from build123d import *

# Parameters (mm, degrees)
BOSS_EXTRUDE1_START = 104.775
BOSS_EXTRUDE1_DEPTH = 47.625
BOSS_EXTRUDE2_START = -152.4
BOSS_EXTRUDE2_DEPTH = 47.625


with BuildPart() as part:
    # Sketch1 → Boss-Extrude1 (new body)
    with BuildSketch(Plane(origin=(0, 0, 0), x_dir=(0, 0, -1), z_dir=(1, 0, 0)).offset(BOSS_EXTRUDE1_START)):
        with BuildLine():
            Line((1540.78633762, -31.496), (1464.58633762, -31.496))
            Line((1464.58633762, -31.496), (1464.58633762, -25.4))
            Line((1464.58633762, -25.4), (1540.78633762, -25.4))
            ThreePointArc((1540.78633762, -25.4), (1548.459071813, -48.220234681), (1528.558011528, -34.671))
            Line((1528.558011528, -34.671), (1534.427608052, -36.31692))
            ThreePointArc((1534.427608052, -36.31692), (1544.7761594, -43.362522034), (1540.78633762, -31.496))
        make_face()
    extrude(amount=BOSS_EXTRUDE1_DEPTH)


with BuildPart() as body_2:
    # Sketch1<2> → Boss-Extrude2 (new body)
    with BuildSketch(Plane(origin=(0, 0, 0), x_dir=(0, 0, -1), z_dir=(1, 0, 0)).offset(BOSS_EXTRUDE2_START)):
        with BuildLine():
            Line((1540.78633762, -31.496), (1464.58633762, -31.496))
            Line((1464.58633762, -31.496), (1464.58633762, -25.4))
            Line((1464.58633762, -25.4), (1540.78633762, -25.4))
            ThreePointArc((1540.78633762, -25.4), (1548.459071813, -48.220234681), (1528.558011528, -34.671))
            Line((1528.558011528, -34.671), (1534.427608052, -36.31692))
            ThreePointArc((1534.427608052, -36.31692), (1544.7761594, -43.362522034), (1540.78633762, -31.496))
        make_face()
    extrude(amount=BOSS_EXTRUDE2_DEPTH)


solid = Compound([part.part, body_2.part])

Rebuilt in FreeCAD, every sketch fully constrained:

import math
import FreeCAD as App
import Part
import Sketcher
from FreeCAD import Vector
Q = App.Units.Quantity

doc = App.newDocument("Part")
body = doc.addObject("PartDesign::Body", "Body")

sketch1 = doc.addObject("Sketcher::SketchObject", "Sketch")
body.addObject(sketch1)
sketch1.AttachmentSupport = (doc.YZ_Plane, [""])
sketch1.MapMode = "FlatFace"
sketch1.AttachmentOffset = App.Placement(Vector(0, 0, 4.125 * 25.4), App.Rotation())
sketch1.addGeometry([
    Part.LineSegment(Vector(-31.496, -1464.586338, 0), Vector(-31.496, -1540.786338, 0)),
    Part.ArcOfCircle(Part.Circle(Vector(-38.1, -1540.786338, 0), Vector(0, 0, 1), 6.604), math.radians(74.335733), math.radians(360)),
    Part.LineSegment(Vector(-36.31692, -1534.427608, 0), Vector(-34.671, -1528.558012, 0)),
    Part.ArcOfCircle(Part.Circle(Vector(-38.1, -1540.786338, 0), Vector(0, 0, 1), 12.7), math.radians(74.335733), math.radians(360)),
    Part.LineSegment(Vector(-25.4, -1540.786338, 0), Vector(-25.4, -1464.586338, 0)),
    Part.LineSegment(Vector(-25.4, -1464.586338, 0), Vector(-31.496, -1464.586338, 0)),
], False)
sketch1.addConstraint([
    Sketcher.Constraint("Tangent", 0, 2, 1, 2),
    Sketcher.Constraint("Coincident", 1, 1, 2, 1),
    Sketcher.Constraint("Coincident", 2, 2, 3, 1),
    Sketcher.Constraint("Tangent", 3, 2, 4, 1),
    Sketcher.Constraint("Coincident", 4, 2, 5, 1),
    Sketcher.Constraint("Coincident", 5, 2, 0, 1),
    Sketcher.Constraint("Vertical", 0),
    Sketcher.Constraint("Vertical", 4),
    Sketcher.Constraint("Horizontal", 5),
    Sketcher.Constraint("Coincident", 3, 3, 1, 3),
    Sketcher.Constraint("Radius", 3, Q("0.5 in")),
    Sketcher.Constraint("DistanceY", 0, 2, 0, 1, Q("3 in")),
    Sketcher.Constraint("Radius", 1, Q("0.26 in")),
    Sketcher.Constraint("DistanceX", 3, 2, -1, 1, Q("1 in")),
    Sketcher.Constraint("DistanceX", 2, 2, -1, 1, Q("1.365 in")),
    Sketcher.Constraint("DistanceX", 1, 1, -1, 1, Q("1.4298 in")),
    Sketcher.Constraint("DistanceY", 1, 1, -1, 1, 1534.427608),
])
pad1 = doc.addObject("PartDesign::Pad", "Pad")
body.addObject(pad1)
pad1.Profile = sketch1
pad1.Length = Q("1.875 in")
body2 = doc.addObject("PartDesign::Body", "Body001")

sketch2 = doc.addObject("Sketcher::SketchObject", "Sketch001")
body2.addObject(sketch2)
sketch2.AttachmentSupport = (doc.getObject("YZ_Plane001"), [""])
sketch2.MapMode = "FlatFace"
sketch2.AttachmentOffset = App.Placement(Vector(0, 0, -6 * 25.4), App.Rotation())
sketch2.addGeometry([
    Part.LineSegment(Vector(-31.496, -1464.586338, 0), Vector(-31.496, -1540.786338, 0)),
    Part.ArcOfCircle(Part.Circle(Vector(-38.1, -1540.786338, 0), Vector(0, 0, 1), 6.604), math.radians(74.335733), math.radians(360)),
    Part.LineSegment(Vector(-36.31692, -1534.427608, 0), Vector(-34.671, -1528.558012, 0)),
    Part.ArcOfCircle(Part.Circle(Vector(-38.1, -1540.786338, 0), Vector(0, 0, 1), 12.7), math.radians(74.335733), math.radians(360)),
    Part.LineSegment(Vector(-25.4, -1540.786338, 0), Vector(-25.4, -1464.586338, 0)),
    Part.LineSegment(Vector(-25.4, -1464.586338, 0), Vector(-31.496, -1464.586338, 0)),
], False)
sketch2.addConstraint([
    Sketcher.Constraint("Tangent", 0, 2, 1, 2),
    Sketcher.Constraint("Coincident", 1, 1, 2, 1),
    Sketcher.Constraint("Coincident", 2, 2, 3, 1),
    Sketcher.Constraint("Tangent", 3, 2, 4, 1),
    Sketcher.Constraint("Coincident", 4, 2, 5, 1),
    Sketcher.Constraint("Coincident", 5, 2, 0, 1),
    Sketcher.Constraint("Vertical", 0),
    Sketcher.Constraint("Vertical", 4),
    Sketcher.Constraint("Horizontal", 5),
    Sketcher.Constraint("Coincident", 3, 3, 1, 3),
    Sketcher.Constraint("Radius", 3, Q("0.5 in")),
    Sketcher.Constraint("DistanceY", 0, 2, 0, 1, Q("3 in")),
    Sketcher.Constraint("Radius", 1, Q("0.26 in")),
    Sketcher.Constraint("DistanceX", 3, 2, -1, 1, Q("1 in")),
    Sketcher.Constraint("DistanceX", 2, 2, -1, 1, Q("1.365 in")),
    Sketcher.Constraint("DistanceX", 1, 1, -1, 1, Q("1.4298 in")),
    Sketcher.Constraint("DistanceY", 1, 1, -1, 1, 1534.427608),
])
pad2 = doc.addObject("PartDesign::Pad", "Pad001")
body2.addObject(pad2)
pad2.Profile = sketch2
pad2.Length = Q("1.875 in")

doc.recompute()
